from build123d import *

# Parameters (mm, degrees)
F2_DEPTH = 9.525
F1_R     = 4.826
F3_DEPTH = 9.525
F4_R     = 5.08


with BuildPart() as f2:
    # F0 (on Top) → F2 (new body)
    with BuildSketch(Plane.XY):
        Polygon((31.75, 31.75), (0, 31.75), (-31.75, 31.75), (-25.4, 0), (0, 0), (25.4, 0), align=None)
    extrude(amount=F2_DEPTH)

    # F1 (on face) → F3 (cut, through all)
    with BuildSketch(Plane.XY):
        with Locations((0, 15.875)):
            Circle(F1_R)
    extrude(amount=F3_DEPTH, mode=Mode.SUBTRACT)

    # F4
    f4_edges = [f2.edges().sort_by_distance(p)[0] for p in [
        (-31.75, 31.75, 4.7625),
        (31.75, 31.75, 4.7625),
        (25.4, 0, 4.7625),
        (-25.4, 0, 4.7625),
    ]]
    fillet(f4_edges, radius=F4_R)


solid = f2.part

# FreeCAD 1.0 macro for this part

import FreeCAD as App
import Part
import Sketcher
Q = App.Units.Quantity


def edges_at(feature, points):
    """Names of the edges that pass closest to the given points."""
    edges = feature.Shape.Edges
    near = lambda p: min(range(len(edges)), key=lambda i: edges[i].distToShape(Part.Vertex(*p))[0])
    return sorted({f"Edge{near(p) + 1}" for p in points})

doc = App.newDocument("Part")
params = doc.addObject("Spreadsheet::Sheet", "Params")
for row, (alias, value) in enumerate([
    ("sketch1_width", "2 in"),
    ("sketch1_width2", "2.5 in"),
    ("pad1_length", "0.375 in"),
    ("sketch2_diameter", "0.38 in"),
    ("fillet_radius", "0.2 in"),
], start=1):
    params.set(f"A{row}", alias)
    params.set(f"B{row}", "=" + value)
    params.setAlias(f"B{row}", alias)

body = doc.addObject("PartDesign::Body", "Body")

sketch1 = doc.addObject("Sketcher::SketchObject", "Sketch")
body.addObject(sketch1)
sketch1.AttachmentSupport = (doc.XY_Plane, [""])
sketch1.MapMode = "FlatFace"
sketch1.addGeometry([
    Part.LineSegment(App.Vector(31.75, 31.75, 0), App.Vector(-31.75, 31.75, 0)),
    Part.LineSegment(App.Vector(-31.75, 31.75, 0), App.Vector(-25.4, 0, 0)),
    Part.LineSegment(App.Vector(-25.4, 0, 0), App.Vector(25.4, 0, 0)),
    Part.LineSegment(App.Vector(25.4, 0, 0), App.Vector(31.75, 31.75, 0)),
], False)
sketch1.addConstraint([
    Sketcher.Constraint("Coincident", 0, 2, 1, 1),
    Sketcher.Constraint("Coincident", 1, 2, 2, 1),
    Sketcher.Constraint("Coincident", 2, 2, 3, 1),
    Sketcher.Constraint("Coincident", 3, 2, 0, 1),
    Sketcher.Constraint("Horizontal", 0),
    Sketcher.Constraint("Horizontal", 2),
    Sketcher.Constraint("Symmetric", 1, 2, 2, 2, -1, 1),
    Sketcher.Constraint("Equal", 1, 3),
    Sketcher.Constraint("DistanceX", 2, 1, 2, 2, Q("2 in")),
    Sketcher.Constraint("DistanceX", 0, 2, 0, 1, Q("2.5 in")),
    Sketcher.Constraint("DistanceY", -1, 1, 0, 2, Q("1.25 in")),
])
sketch1.setExpression("Constraints[8]", "Params.sketch1_width")
sketch1.setExpression("Constraints[9]", "Params.sketch1_width2")
pad1 = doc.addObject("PartDesign::Pad", "Pad")
body.addObject(pad1)
pad1.Profile = sketch1
pad1.setExpression("Length", "Params.pad1_length")

sketch2 = doc.addObject("Sketcher::SketchObject", "Sketch001")
body.addObject(sketch2)
sketch2.AttachmentSupport = (doc.XY_Plane, [""])
sketch2.MapMode = "FlatFace"
sketch2.addGeometry(Part.Circle(App.Vector(0, 15.875, 0), App.Vector(0, 0, 1), 4.826), False)
sketch2.addConstraint([
    Sketcher.Constraint("PointOnObject", 0, 3, -2),
    Sketcher.Constraint("Diameter", 0, Q("0.38 in")),
    Sketcher.Constraint("DistanceY", -1, 1, 0, 3, Q("0.625 in")),
])
sketch2.setExpression("Constraints[1]", "Params.sketch2_diameter")
pocket1 = doc.addObject("PartDesign::Pocket", "Pocket")
body.addObject(pocket1)
pocket1.Profile = sketch2
pocket1.Type = "ThroughAll"
pocket1.Reversed = True
doc.recompute()

fillet = doc.addObject("PartDesign::Fillet", "Fillet")
body.addObject(fillet)
fillet.Base = (pocket1, edges_at(pocket1, [
    (-31.75, 31.75, 4.763),
    (31.75, 31.75, 4.763),
    (25.4, 0, 4.763),
    (-25.4, 0, 4.763),
]))
fillet.setExpression("Radius", "Params.fillet_radius")

doc.recompute()
